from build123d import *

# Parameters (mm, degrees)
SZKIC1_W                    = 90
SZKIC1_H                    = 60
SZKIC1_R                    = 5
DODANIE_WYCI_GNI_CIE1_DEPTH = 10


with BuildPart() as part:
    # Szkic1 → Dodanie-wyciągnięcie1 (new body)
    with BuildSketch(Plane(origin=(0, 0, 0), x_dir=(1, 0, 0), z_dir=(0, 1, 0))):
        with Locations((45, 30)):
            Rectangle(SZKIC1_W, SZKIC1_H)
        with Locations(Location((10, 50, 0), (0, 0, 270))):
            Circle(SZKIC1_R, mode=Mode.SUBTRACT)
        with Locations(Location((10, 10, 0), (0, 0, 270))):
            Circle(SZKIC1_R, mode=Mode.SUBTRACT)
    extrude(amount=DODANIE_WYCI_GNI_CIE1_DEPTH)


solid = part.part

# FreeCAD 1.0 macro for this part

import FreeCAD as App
import Part
import Sketcher

V = App.Vector

doc = App.newDocument("Part")
body = doc.addObject("PartDesign::Body", "Body")

# Sketch on XZ plane
sketch1 = body.newObject("Sketcher::SketchObject", "Sketch")
sketch1.AttachmentSupport = (doc.getObject("XZ_Plane"), [""])
sketch1.MapMode = "FlatFace"
sketch1.addGeometry([
    Part.LineSegment(V(0, -60, 0), V(0, 0, 0)),  # 0
    Part.LineSegment(V(0, 0, 0), V(90, 0, 0)),  # 1
    Part.LineSegment(V(90, 0, 0), V(90, -60, 0)),  # 2
    Part.LineSegment(V(90, -60, 0), V(0, -60, 0)),  # 3
    Part.Circle(V(10, -10, 0), V(0, 0, 1), 5),  # 4
    Part.Circle(V(10, -50, 0), V(0, 0, 1), 5),  # 5
], False)
sketch1.addConstraint([
    Sketcher.Constraint("Coincident", 0, 2, 1, 1),
    Sketcher.Constraint("Coincident", 1, 2, 2, 1),
    Sketcher.Constraint("Coincident", 2, 2, 3, 1),
    Sketcher.Constraint("Coincident", 3, 2, 0, 1),
    Sketcher.Constraint("Vertical", 0),
    Sketcher.Constraint("Horizontal", 1),
    Sketcher.Constraint("Vertical", 2),
    Sketcher.Constraint("Horizontal", 3),
    Sketcher.Constraint("Coincident", 0, 2, -1, 1),
    Sketcher.Constraint("Equal", 4, 5),
    Sketcher.Constraint("Vertical", 4, 3, 5, 3),
    Sketcher.Constraint("Diameter", 4, 10.0),
    Sketcher.Constraint("DistanceX", 1, 1, 1, 2, 90.0),
    Sketcher.Constraint("DistanceY", 0, 1, 0, 2, 60.0),
    Sketcher.Constraint("DistanceX", -1, 1, 4, 3, 10.0),
    Sketcher.Constraint("DistanceY", 4, 3, -1, 1, 10.0),
    Sketcher.Constraint("DistanceY", 5, 3, -1, 1, 50.0),
])
pad1 = body.newObject("PartDesign::Pad", "Pad")
pad1.Profile = sketch1
pad1.Length = 10
pad1.Reversed = True

doc.recompute()
